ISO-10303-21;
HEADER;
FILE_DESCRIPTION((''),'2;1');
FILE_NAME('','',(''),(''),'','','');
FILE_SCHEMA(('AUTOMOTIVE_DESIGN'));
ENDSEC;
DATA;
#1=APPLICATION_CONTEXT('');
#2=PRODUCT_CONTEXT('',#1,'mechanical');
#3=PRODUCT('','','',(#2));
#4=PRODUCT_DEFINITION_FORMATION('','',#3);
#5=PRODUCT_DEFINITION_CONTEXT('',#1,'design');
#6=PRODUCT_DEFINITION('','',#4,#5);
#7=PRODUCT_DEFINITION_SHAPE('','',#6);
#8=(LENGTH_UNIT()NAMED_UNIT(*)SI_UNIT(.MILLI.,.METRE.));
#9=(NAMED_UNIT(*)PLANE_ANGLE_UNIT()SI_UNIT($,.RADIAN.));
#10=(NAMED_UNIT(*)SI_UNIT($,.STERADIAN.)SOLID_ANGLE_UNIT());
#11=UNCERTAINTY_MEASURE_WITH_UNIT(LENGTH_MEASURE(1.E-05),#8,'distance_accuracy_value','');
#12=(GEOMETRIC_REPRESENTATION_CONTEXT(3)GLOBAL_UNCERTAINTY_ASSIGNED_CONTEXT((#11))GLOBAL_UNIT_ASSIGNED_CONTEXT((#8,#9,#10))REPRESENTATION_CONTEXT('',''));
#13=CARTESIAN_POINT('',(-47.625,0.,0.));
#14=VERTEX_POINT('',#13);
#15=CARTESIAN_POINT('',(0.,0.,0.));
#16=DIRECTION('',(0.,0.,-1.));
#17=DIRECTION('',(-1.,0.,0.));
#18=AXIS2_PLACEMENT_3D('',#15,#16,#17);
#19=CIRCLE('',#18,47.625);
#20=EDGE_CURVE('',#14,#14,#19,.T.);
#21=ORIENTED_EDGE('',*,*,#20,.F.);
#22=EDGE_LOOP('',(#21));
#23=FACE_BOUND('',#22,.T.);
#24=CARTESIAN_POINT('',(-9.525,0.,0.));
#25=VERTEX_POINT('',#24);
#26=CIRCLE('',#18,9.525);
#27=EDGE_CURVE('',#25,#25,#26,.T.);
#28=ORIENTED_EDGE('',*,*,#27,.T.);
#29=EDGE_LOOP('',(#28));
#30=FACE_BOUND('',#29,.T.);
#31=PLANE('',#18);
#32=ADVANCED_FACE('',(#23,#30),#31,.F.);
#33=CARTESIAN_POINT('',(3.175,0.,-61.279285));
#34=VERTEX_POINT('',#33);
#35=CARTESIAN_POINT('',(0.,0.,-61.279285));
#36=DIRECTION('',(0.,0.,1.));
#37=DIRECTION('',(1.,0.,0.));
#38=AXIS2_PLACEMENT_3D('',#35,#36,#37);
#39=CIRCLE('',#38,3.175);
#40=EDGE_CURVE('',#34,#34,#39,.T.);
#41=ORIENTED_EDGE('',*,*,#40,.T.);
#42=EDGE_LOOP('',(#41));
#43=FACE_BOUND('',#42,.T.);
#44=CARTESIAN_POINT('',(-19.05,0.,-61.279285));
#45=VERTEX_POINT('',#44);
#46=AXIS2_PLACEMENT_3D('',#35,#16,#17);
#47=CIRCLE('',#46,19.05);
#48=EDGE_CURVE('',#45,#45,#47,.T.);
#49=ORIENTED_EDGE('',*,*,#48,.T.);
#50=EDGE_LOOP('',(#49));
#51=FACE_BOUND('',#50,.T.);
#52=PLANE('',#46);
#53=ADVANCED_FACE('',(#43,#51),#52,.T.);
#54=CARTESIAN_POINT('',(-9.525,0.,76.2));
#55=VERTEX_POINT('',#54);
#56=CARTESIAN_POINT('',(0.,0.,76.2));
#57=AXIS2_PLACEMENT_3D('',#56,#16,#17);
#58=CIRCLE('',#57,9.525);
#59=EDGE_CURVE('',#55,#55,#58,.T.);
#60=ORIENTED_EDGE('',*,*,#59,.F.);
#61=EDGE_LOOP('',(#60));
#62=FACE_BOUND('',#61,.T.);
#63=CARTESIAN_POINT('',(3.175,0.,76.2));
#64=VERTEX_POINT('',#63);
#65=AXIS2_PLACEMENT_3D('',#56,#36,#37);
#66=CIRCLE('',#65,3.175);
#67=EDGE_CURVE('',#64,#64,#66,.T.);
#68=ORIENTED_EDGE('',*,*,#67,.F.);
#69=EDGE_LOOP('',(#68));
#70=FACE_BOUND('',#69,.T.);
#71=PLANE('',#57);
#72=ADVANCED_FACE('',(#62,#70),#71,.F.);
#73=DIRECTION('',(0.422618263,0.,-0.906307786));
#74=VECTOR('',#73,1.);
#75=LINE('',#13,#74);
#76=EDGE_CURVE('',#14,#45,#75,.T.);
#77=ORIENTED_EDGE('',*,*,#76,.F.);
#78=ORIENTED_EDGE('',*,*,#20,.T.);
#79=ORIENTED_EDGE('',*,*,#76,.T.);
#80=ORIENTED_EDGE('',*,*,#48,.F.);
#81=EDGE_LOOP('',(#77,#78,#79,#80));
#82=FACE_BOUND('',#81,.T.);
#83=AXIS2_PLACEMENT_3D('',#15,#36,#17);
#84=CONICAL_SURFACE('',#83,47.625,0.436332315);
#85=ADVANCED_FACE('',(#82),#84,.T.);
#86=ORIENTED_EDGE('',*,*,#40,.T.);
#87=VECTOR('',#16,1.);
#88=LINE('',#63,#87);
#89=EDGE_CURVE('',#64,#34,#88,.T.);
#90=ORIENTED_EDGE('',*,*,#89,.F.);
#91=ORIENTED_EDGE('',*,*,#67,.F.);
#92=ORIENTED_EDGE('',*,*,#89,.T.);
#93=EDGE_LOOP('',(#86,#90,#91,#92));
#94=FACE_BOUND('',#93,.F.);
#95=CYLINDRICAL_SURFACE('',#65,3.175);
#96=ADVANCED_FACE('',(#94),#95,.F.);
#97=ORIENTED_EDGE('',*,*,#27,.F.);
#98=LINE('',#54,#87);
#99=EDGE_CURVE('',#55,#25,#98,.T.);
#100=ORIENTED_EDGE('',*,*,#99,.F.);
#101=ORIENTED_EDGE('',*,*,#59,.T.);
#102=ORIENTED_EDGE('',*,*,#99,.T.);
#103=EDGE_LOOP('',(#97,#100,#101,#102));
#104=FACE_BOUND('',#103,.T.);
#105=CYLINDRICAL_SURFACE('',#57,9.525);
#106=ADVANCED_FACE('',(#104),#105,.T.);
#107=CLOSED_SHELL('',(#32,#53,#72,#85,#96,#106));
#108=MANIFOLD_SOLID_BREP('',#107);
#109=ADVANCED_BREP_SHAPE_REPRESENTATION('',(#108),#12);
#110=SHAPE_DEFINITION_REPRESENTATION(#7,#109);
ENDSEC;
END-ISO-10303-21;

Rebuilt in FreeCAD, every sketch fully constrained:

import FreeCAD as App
import Part
import Sketcher

V = App.Vector
Q = App.Units.Quantity


def add_polygon(sketch, points):
    """Adds a closed chain of lines whose ends are joined by coincident constraints."""
    first, n = sketch.GeometryCount, len(points)
    for a, b in zip(points, points[1:] + points[:1]):
        sketch.addGeometry(Part.LineSegment(App.Vector(*a, 0), App.Vector(*b, 0)), False)
    for i in range(n):
        sketch.addConstraint(Sketcher.Constraint("Coincident", first + i, 2, first + (i + 1) % n, 1))

doc = App.newDocument("Part")
body = doc.addObject("PartDesign::Body", "Body")

# Sketch on XZ plane
sketch1 = doc.addObject("Sketcher::SketchObject", "Sketch")
body.addObject(sketch1)
sketch1.AttachmentSupport = (doc.XZ_Plane, [""])
sketch1.MapMode = "FlatFace"
add_polygon(sketch1, [(-19, -61), (0, -61), (0, 76), (-10, 76), (-10, 0), (-48, 0)])  # lines 0-5
sketch1.addConstraint(Sketcher.Constraint("Horizontal", 0))
sketch1.addConstraint(Sketcher.Constraint("Vertical", 1))
sketch1.addConstraint(Sketcher.Constraint("Horizontal", 2))
sketch1.addConstraint(Sketcher.Constraint("Vertical", 3))
sketch1.addConstraint(Sketcher.Constraint("Horizontal", 4))
sketch1.addConstraint(Sketcher.Constraint("PointOnObject", 0, 2, -2))
sketch1.addConstraint(Sketcher.Constraint("PointOnObject", 3, 2, -1))
sketch1.addConstraint(Sketcher.Constraint("DistanceY", 3, 2, 3, 1, Q("3 in")))
sketch1.addConstraint(Sketcher.Constraint("DistanceX", 4, 2, 4, 1, Q("1.5 in")))
sketch1.addConstraint(Sketcher.Constraint("Angle", 5, Q("-65 deg")))
sketch1.addConstraint(Sketcher.Constraint("DistanceX", 0, 1, 0, 2, Q("0.75 in")))
sketch1.addConstraint(Sketcher.Constraint("DistanceX", 2, 2, 2, 1, Q("0.375 in")))
revolution = doc.addObject("PartDesign::Revolution", "Revolution")
body.addObject(revolution)
revolution.Profile = sketch1
revolution.ReferenceAxis = (sketch1, ["V_Axis"])
revolution.Angle = 360

# Sketch on XY plane
sketch2 = doc.addObject("Sketcher::SketchObject", "Sketch001")
body.addObject(sketch2)
sketch2.AttachmentSupport = (doc.XY_Plane, [""])
sketch2.MapMode = "FlatFace"
sketch2.AttachmentOffset = App.Placement(V(0, 0, 3 * 25.4), App.Rotation())
sketch2.addGeometry(Part.Circle(V(0, 0, 0), V(0, 0, 1), 3.2), False)
sketch2.addConstraint(Sketcher.Constraint("Coincident", 0, 3, -1, 1))
sketch2.addConstraint(Sketcher.Constraint("Diameter", 0, Q("0.25 in")))
pocket1 = doc.addObject("PartDesign::Pocket", "Pocket")
body.addObject(pocket1)
pocket1.Profile = sketch2
pocket1.Type = "ThroughAll"

doc.recompute()
